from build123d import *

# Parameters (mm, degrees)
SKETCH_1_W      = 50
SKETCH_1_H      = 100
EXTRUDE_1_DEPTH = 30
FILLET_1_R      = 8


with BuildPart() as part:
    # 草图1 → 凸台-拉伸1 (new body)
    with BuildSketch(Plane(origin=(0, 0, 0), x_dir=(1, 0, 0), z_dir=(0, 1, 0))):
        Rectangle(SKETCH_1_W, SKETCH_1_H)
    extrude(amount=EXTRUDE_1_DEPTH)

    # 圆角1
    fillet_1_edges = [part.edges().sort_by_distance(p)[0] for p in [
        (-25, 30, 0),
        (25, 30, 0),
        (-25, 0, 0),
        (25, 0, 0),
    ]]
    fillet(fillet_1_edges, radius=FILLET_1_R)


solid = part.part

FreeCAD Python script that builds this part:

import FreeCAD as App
import Part
import Sketcher


def edges_at(feature, points):
    """Names of the edges that pass closest to the given points."""
    edges = feature.Shape.Edges
    near = lambda p: min(range(len(edges)), key=lambda i: edges[i].distToShape(Part.Vertex(*p))[0])
    return sorted({f"Edge{near(p) + 1}" for p in points})

doc = App.newDocument("Part")
params = doc.addObject("Spreadsheet::Sheet", "Params")
for row, (alias, value) in enumerate([
    ("sketch1_width", "50 mm"),
    ("sketch1_height", "100 mm"),
    ("pad1_length", "30 mm"),
    ("fillet_radius", "8 mm"),
], start=1):
    params.set(f"A{row}", alias)
    params.set(f"B{row}", "=" + value)
    params.setAlias(f"B{row}", alias)

body = doc.addObject("PartDesign::Body", "Body")

# Sketch on XZ plane
sketch1 = body.newObject("Sketcher::SketchObject", "Sketch")
sketch1.AttachmentSupport = (doc.getObject("XZ_Plane"), [""])
sketch1.MapMode = "FlatFace"
sketch1.addGeometry([
    Part.LineSegment(App.Vector(-25, -50, 0), App.Vector(-25, 50, 0)),
    Part.LineSegment(App.Vector(-25, 50, 0), App.Vector(25, 50, 0)),
    Part.LineSegment(App.Vector(25, 50, 0), App.Vector(25, -50, 0)),
    Part.LineSegment(App.Vector(25, -50, 0), App.Vector(-25, -50, 0)),
], False)
sketch1.addConstraint([
    Sketcher.Constraint("Coincident", 0, 2, 1, 1),
    Sketcher.Constraint("Coincident", 1, 2, 2, 1),
    Sketcher.Constraint("Coincident", 2, 2, 3, 1),
    Sketcher.Constraint("Coincident", 3, 2, 0, 1),
    Sketcher.Constraint("Vertical", 0),
    Sketcher.Constraint("Horizontal", 1),
    Sketcher.Constraint("Vertical", 2),
    Sketcher.Constraint("Horizontal", 3),
    Sketcher.Constraint("Symmetric", 0, 2, 2, 2, -1, 1),
    Sketcher.Constraint("DistanceX", 1, 1, 1, 2, 50.0),
    Sketcher.Constraint("DistanceY", 0, 1, 0, 2, 100.0),
])
sketch1.setExpression("Constraints[9]", "Params.sketch1_width")
sketch1.setExpression("Constraints[10]", "Params.sketch1_height")
pad1 = body.newObject("PartDesign::Pad", "Pad")
pad1.Profile = sketch1
pad1.setExpression("Length", "Params.pad1_length")
pad1.Reversed = True
doc.recompute()

fillet = body.newObject("PartDesign::Fillet", "Fillet")
fillet.Base = (pad1, edges_at(pad1, [
    (-25, 30, 0),
    (25, 30, 0),
    (-25, 0, 0),
    (25, 0, 0),
]))
fillet.setExpression("Radius", "Params.fillet_radius")

doc.recompute()
